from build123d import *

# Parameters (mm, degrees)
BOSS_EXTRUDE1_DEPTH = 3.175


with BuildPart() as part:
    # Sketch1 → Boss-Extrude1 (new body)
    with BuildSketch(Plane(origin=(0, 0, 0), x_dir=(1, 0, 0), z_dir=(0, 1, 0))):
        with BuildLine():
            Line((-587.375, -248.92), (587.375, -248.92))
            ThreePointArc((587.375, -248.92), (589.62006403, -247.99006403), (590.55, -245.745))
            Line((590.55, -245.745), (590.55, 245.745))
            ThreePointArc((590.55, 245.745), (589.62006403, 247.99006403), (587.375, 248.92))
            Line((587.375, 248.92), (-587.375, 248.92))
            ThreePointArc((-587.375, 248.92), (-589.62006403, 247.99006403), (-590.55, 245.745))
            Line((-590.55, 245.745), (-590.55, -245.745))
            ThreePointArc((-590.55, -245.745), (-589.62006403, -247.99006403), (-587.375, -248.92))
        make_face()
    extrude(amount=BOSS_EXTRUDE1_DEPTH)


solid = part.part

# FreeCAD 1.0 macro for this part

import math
import FreeCAD as App
import Part
import Sketcher
from FreeCAD import Vector
Q = App.Units.Quantity

doc = App.newDocument("Part")
body = doc.addObject("PartDesign::Body", "Body")

# Sketch on XZ plane
sketch1 = body.newObject("Sketcher::SketchObject", "Sketch")
sketch1.AttachmentSupport = (doc.getObject("XZ_Plane"), [""])
sketch1.MapMode = "FlatFace"
sketch1.addGeometry(Part.LineSegment(Vector(-587.4, 248.9, 0), Vector(587.4, 248.9, 0)), False)
sketch1.addGeometry(Part.ArcOfCircle(Part.Circle(Vector(587.4, 245.7, 0), Vector(0, 0, 1), 3.2), math.radians(0), math.radians(90)), False)
sketch1.addGeometry(Part.LineSegment(Vector(590.5, 245.7, 0), Vector(590.5, -245.7, 0)), False)
sketch1.addGeometry(Part.ArcOfCircle(Part.Circle(Vector(587.4, -245.7, 0), Vector(0, 0, 1), 3.2), math.radians(-90), math.radians(0)), False)
sketch1.addGeometry(Part.LineSegment(Vector(587.4, -248.9, 0), Vector(-587.4, -248.9, 0)), False)
sketch1.addGeometry(Part.ArcOfCircle(Part.Circle(Vector(-587.4, -245.7, 0), Vector(0, 0, 1), 3.2), math.radians(-180), math.radians(-90)), False)
sketch1.addGeometry(Part.LineSegment(Vector(-590.5, -245.7, 0), Vector(-590.5, 245.7, 0)), False)
sketch1.addGeometry(Part.ArcOfCircle(Part.Circle(Vector(-587.4, 245.7, 0), Vector(0, 0, 1), 3.2), math.radians(90), math.radians(180)), False)
sketch1.addConstraint(Sketcher.Constraint("Tangent", 0, 2, 1, 2))
sketch1.addConstraint(Sketcher.Constraint("Tangent", 1, 1, 2, 1))
sketch1.addConstraint(Sketcher.Constraint("Tangent", 2, 2, 3, 2))
sketch1.addConstraint(Sketcher.Constraint("Tangent", 3, 1, 4, 1))
sketch1.addConstraint(Sketcher.Constraint("Tangent", 4, 2, 5, 2))
sketch1.addConstraint(Sketcher.Constraint("Tangent", 5, 1, 6, 1))
sketch1.addConstraint(Sketcher.Constraint("Tangent", 6, 2, 7, 2))
sketch1.addConstraint(Sketcher.Constraint("Tangent", 7, 1, 0, 1))
sketch1.addConstraint(Sketcher.Constraint("Horizontal", 0))
sketch1.addConstraint(Sketcher.Constraint("Vertical", 2))
sketch1.addConstraint(Sketcher.Constraint("Horizontal", 4))
sketch1.addConstraint(Sketcher.Constraint("Vertical", 6))
sketch1.addConstraint(Sketcher.Constraint("Equal", 1, 3))
sketch1.addConstraint(Sketcher.Constraint("Equal", 3, 5))
sketch1.addConstraint(Sketcher.Constraint("Equal", 5, 7))
sketch1.addConstraint(Sketcher.Constraint("Symmetric", 1, 3, 5, 3, -1, 1))
sketch1.addConstraint(Sketcher.Constraint("Radius", 1, Q("0.125 in")))
sketch1.addConstraint(Sketcher.Constraint("DistanceX", 0, 1, 0, 2, Q("46.25 in")))
sketch1.addConstraint(Sketcher.Constraint("DistanceY", 2, 2, 2, 1, Q("19.35 in")))
pad1 = body.newObject("PartDesign::Pad", "Pad")
pad1.Profile = sketch1
pad1.Length = Q("0.125 in")
pad1.Reversed = True

doc.recompute()
